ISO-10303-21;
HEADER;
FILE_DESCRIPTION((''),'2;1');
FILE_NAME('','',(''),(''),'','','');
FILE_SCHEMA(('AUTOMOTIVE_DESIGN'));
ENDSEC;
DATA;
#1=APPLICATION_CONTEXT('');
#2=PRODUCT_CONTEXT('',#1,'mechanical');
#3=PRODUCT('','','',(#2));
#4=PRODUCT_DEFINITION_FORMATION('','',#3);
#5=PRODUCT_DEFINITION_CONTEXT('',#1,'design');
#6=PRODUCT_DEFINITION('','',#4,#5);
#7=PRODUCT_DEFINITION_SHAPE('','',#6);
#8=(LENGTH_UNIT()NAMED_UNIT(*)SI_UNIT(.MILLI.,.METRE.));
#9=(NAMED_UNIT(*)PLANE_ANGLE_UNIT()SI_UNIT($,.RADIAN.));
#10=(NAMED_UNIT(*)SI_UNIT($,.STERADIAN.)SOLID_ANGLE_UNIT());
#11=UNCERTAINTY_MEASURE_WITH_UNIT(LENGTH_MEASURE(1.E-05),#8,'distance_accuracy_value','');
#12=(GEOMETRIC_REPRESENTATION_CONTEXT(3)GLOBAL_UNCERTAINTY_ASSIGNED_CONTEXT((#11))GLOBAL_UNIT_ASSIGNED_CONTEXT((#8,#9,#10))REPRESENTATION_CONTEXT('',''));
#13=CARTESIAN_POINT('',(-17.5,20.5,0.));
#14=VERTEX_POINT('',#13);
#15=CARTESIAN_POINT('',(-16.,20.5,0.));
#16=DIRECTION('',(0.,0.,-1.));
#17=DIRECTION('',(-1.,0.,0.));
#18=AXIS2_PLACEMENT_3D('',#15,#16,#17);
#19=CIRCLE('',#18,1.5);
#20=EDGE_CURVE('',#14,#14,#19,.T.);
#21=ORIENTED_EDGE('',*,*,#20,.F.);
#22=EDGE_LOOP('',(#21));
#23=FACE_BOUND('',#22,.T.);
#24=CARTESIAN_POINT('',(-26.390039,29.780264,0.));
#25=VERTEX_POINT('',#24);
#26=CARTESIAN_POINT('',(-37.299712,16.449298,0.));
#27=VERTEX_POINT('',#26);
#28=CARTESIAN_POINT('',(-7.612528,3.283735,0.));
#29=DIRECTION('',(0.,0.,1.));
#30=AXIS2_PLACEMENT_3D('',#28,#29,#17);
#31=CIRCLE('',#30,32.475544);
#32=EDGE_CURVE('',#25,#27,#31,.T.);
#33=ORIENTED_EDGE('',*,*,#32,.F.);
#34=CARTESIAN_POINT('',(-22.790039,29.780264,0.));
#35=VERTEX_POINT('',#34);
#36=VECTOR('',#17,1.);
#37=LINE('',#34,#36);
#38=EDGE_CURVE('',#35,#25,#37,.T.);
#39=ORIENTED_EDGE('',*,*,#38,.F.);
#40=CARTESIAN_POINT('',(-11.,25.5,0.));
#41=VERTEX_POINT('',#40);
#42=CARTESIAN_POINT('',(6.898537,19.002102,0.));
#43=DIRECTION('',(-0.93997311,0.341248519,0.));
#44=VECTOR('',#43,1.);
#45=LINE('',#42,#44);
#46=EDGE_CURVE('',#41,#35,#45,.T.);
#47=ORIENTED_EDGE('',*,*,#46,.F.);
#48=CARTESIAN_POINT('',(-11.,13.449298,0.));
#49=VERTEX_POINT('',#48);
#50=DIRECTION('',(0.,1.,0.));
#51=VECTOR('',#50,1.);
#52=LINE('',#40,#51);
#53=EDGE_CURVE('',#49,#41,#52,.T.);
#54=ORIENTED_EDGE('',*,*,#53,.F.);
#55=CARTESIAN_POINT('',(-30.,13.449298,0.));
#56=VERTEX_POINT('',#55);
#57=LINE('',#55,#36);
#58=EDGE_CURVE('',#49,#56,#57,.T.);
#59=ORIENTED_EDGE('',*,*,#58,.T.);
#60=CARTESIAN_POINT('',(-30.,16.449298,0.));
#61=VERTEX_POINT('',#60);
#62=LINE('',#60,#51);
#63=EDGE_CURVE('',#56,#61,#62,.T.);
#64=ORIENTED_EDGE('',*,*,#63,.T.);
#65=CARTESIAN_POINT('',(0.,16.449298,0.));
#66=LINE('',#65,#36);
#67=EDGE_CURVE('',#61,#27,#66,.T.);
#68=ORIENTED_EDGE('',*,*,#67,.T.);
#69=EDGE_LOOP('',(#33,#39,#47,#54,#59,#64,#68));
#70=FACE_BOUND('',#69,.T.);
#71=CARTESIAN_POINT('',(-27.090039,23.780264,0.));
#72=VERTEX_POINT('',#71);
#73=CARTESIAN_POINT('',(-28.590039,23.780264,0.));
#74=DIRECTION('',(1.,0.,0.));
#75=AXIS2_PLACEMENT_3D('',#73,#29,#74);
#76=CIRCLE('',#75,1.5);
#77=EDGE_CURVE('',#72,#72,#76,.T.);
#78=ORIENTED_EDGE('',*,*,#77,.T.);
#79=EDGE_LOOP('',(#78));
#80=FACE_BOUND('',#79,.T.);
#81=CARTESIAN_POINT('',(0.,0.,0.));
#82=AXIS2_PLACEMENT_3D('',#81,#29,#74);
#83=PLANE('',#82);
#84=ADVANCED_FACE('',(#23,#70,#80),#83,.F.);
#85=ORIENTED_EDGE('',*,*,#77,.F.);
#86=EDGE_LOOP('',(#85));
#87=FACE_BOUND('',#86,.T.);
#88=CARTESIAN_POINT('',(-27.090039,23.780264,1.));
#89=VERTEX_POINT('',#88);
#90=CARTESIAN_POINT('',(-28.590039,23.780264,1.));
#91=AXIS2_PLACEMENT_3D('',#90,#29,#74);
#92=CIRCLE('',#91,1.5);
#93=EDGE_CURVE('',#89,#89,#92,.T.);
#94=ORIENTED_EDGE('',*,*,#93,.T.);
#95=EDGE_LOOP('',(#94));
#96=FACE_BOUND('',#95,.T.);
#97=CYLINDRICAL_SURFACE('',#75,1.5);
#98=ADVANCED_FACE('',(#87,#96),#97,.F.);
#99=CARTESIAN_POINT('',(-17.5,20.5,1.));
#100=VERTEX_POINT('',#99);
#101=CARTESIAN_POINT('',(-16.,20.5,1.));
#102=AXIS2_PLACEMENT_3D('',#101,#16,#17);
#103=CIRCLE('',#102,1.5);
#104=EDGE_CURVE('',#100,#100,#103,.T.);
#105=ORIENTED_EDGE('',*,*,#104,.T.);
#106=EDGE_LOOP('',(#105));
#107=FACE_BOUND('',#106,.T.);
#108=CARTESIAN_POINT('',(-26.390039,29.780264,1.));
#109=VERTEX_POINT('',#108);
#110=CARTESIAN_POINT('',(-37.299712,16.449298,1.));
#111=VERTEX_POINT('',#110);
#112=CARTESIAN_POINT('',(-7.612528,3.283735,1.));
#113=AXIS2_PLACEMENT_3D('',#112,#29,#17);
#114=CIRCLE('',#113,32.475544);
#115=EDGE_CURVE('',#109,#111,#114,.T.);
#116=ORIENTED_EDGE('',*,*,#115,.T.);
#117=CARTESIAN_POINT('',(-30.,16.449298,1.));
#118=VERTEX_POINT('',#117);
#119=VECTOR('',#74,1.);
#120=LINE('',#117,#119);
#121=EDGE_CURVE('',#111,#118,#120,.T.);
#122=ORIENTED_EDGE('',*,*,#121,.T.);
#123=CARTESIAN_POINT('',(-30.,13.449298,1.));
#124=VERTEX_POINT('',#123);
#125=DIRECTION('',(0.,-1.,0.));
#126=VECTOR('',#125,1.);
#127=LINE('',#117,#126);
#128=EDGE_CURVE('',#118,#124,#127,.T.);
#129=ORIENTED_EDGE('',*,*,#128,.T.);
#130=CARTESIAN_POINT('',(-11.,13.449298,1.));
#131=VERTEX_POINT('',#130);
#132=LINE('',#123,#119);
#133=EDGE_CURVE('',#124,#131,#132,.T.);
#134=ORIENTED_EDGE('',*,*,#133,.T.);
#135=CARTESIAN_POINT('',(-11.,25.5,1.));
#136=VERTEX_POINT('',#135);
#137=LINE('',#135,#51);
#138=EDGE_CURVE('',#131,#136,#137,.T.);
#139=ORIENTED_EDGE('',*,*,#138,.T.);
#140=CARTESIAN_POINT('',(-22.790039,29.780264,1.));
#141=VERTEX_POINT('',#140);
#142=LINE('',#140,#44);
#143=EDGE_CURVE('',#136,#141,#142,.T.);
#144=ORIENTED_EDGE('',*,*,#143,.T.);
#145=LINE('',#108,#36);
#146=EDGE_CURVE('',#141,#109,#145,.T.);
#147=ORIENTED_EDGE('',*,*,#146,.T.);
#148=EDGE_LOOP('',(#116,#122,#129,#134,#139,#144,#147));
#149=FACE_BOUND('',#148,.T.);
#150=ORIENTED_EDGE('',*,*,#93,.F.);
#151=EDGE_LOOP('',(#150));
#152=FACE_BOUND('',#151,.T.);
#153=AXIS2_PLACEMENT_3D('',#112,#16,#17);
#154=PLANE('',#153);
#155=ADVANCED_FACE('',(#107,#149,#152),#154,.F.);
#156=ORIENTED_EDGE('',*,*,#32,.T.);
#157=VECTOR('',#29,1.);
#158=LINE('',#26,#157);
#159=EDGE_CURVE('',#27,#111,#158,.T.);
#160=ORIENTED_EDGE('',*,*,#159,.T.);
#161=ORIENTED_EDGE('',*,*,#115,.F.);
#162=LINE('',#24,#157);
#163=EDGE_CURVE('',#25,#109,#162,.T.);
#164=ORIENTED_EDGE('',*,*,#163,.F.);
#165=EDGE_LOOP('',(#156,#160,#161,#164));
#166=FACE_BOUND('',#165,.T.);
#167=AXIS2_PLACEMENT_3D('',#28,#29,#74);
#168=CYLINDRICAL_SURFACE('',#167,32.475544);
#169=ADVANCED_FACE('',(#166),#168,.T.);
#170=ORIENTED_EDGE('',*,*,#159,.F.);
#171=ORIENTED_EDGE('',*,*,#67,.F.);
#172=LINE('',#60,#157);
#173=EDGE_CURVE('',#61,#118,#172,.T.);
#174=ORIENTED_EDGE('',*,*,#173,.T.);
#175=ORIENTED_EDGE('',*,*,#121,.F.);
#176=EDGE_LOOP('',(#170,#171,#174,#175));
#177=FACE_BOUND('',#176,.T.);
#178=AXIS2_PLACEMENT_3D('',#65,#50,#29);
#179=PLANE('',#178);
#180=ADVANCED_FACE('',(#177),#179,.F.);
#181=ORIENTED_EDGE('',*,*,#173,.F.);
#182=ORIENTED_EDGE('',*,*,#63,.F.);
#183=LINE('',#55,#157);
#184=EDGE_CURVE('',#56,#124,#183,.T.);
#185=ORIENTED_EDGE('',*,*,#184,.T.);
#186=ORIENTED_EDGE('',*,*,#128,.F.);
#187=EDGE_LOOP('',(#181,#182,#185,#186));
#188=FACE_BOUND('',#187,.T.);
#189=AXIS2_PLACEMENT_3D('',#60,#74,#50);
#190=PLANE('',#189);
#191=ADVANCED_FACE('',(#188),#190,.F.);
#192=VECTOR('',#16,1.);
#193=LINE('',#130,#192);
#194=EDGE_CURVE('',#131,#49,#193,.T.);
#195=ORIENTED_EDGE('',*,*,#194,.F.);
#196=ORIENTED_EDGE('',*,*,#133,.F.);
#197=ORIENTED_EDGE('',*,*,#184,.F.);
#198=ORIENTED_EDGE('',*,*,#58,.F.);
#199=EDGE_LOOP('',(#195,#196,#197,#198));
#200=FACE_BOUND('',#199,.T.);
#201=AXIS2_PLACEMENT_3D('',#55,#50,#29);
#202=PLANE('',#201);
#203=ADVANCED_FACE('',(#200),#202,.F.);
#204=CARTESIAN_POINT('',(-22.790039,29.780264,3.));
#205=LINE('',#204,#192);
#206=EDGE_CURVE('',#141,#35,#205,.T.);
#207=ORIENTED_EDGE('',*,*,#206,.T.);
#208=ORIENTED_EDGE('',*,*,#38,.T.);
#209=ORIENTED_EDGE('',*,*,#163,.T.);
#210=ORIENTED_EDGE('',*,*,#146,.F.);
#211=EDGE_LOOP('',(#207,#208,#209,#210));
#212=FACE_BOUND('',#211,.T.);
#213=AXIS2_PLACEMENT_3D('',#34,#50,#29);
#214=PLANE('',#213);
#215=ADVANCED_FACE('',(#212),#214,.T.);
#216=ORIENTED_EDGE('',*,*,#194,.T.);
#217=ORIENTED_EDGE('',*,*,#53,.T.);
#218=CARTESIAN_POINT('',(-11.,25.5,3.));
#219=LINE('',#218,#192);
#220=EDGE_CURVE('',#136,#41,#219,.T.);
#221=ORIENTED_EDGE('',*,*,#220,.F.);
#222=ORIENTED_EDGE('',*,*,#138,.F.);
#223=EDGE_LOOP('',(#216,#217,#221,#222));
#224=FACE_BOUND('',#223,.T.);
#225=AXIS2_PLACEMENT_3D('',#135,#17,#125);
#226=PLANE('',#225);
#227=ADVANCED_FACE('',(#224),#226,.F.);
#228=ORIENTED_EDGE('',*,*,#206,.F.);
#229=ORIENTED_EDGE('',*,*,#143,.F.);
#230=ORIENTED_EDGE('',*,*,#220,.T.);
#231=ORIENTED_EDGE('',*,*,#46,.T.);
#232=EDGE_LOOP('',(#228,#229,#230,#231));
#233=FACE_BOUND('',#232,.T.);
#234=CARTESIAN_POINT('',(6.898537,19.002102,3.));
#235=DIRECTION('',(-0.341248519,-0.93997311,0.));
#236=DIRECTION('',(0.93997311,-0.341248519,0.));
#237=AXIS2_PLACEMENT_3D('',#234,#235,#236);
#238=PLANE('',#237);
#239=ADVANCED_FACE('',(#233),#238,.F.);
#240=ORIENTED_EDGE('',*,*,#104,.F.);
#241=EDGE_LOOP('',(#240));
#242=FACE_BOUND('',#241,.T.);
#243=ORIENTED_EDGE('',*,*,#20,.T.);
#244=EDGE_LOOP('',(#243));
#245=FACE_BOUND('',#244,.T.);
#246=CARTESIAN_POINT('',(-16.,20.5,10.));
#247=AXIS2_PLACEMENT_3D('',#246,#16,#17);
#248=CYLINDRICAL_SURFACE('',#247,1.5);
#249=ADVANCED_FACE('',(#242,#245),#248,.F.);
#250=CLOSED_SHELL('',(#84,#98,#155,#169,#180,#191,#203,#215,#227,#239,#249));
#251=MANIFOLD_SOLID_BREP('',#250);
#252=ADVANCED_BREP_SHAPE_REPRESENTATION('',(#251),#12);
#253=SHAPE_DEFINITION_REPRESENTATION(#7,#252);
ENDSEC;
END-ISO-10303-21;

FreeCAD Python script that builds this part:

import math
import FreeCAD as App
import Part
import Sketcher
from FreeCAD import Vector
Q = App.Units.Quantity

doc = App.newDocument("Part")
body = doc.addObject("PartDesign::Body", "Body")

# Sketch on XY plane
sketch1 = body.newObject("Sketcher::SketchObject", "Sketch")
sketch1.AttachmentSupport = (doc.getObject("XY_Plane"), [""])
sketch1.MapMode = "FlatFace"
sketch1.addGeometry([
    Part.LineSegment(Vector(-11, 26, 0), Vector(-23, 30, 0)),
    Part.ArcOfCircle(Part.Circle(Vector(0, 0, 0), Vector(0, 0, 1), 38), math.radians(127), math.radians(413)),
    Part.LineSegment(Vector(23, 30, 0), Vector(11, 26, 0)),
    Part.LineSegment(Vector(11, 26, 0), Vector(-11, 26, 0)),
], False)
sketch1.addConstraint([
    Sketcher.Constraint("Coincident", 0, 2, 1, 1),
    Sketcher.Constraint("Coincident", 1, 2, 2, 1),
    Sketcher.Constraint("Coincident", 2, 2, 3, 1),
    Sketcher.Constraint("Coincident", 3, 2, 0, 1),
    Sketcher.Constraint("Horizontal", 3),
    Sketcher.Constraint("Coincident", 1, 3, -1, 1),
    Sketcher.Constraint("Horizontal", 0, 2, 1, 2),
    Sketcher.Constraint("Equal", 0, 2),
    Sketcher.Constraint("Radius", 1, Q("37.5 mm")),
    Sketcher.Constraint("DistanceX", 3, 2, 3, 1, Q("22 mm")),
    Sketcher.Constraint("DistanceY", -1, 1, 2, 2, Q("25.5 mm")),
    Sketcher.Constraint("DistanceX", 0, 2, -1, 1, Q("22.790039 mm")),
])
pad1 = body.newObject("PartDesign::Pad", "Pad")
pad1.Profile = sketch1
pad1.Length = 3

# Sketch on XY plane
sketch2 = body.newObject("Sketcher::SketchObject", "Sketch001")
sketch2.AttachmentSupport = (doc.getObject("XY_Plane"), [""])
sketch2.MapMode = "FlatFace"
sketch2.AttachmentOffset = App.Placement(Vector(0, 0, 3), App.Rotation())
sketch2.addGeometry([
    Part.Circle(Vector(-25.4, 10.5, 0), Vector(0, 0, 1), 1.5),
    Part.Circle(Vector(-25.4, -10.5, 0), Vector(0, 0, 1), 1.5),
    Part.Circle(Vector(25.4, -10.5, 0), Vector(0, 0, 1), 1.5),
    Part.Circle(Vector(25.4, 10.5, 0), Vector(0, 0, 1), 1.5),
], False)
sketch2.addConstraint([
    Sketcher.Constraint("Equal", 0, 1),
    Sketcher.Constraint("Equal", 1, 2),
    Sketcher.Constraint("Equal", 2, 3),
    Sketcher.Constraint("Symmetric", 1, 3, 2, 3, -2),
    Sketcher.Constraint("Symmetric", 0, 3, 3, 3, -2),
    Sketcher.Constraint("Diameter", 0, Q("3 mm")),
    Sketcher.Constraint("DistanceX", 0, 3, -1, 1, Q("25.4 mm")),
    Sketcher.Constraint("DistanceY", 1, 3, 0, 3, Q("20.99 mm")),
    Sketcher.Constraint("DistanceX", 1, 3, -1, 1, Q("25.399982 mm")),
    Sketcher.Constraint("DistanceY", -1, 1, 0, 3, Q("10.496905 mm")),
])
pocket1 = body.newObject("PartDesign::Pocket", "Pocket")
pocket1.Profile = sketch2
pocket1.Length = 3

# Sketch on XY plane
sketch3 = body.newObject("Sketcher::SketchObject", "Sketch002")
sketch3.AttachmentSupport = (doc.getObject("XY_Plane"), [""])
sketch3.MapMode = "FlatFace"
sketch3.AttachmentOffset = App.Placement(Vector(0, 0, -7), App.Rotation())
sketch3.addGeometry([
    Part.LineSegment(Vector(-31, -21, 0), Vector(-31, 21, 0)),
    Part.ArcOfCircle(Part.Circle(Vector(0, 0, 0), Vector(0, 0, 1), 38), math.radians(145), math.radians(215)),
    Part.LineSegment(Vector(31, 21, 0), Vector(31, -21, 0)),
    Part.ArcOfCircle(Part.Circle(Vector(0, 0, 0), Vector(0, 0, 1), 38), math.radians(-35), math.radians(35)),
], False)
sketch3.addConstraint([
    Sketcher.Constraint("Coincident", 0, 1, 1, 2),
    Sketcher.Constraint("Coincident", 1, 1, 0, 2),
    Sketcher.Constraint("Coincident", 2, 1, 3, 2),
    Sketcher.Constraint("Coincident", 3, 1, 2, 2),
    Sketcher.Constraint("Vertical", 0),
    Sketcher.Constraint("Vertical", 2),
    Sketcher.Constraint("Coincident", 1, 3, -1, 1),
    Sketcher.Constraint("Coincident", 3, 3, -1, 1),
    Sketcher.Constraint("Equal", 1, 3),
    Sketcher.Constraint("Horizontal", 1, 1, 2, 1),
    Sketcher.Constraint("Radius", 1, Q("37.5 mm")),
    Sketcher.Constraint("DistanceX", 0, 1, -1, 1, Q("30.76 mm")),
])
pocket2 = body.newObject("PartDesign::Pocket", "Pocket001")
pocket2.Profile = sketch3
pocket2.Length = 10
pocket2.Reversed = True

# Sketch on XY plane
sketch4 = body.newObject("Sketcher::SketchObject", "Sketch003")
sketch4.AttachmentSupport = (doc.getObject("XY_Plane"), [""])
sketch4.MapMode = "FlatFace"
sketch4.addGeometry([
    Part.LineSegment(Vector(-30.8, -21.4, 0), Vector(-30.8, -16.4, 0)),  # 0
    Part.LineSegment(Vector(-30.8, -16.4, 0), Vector(-33.7, -16.4, 0)),  # 1
    Part.ArcOfCircle(Part.Circle(Vector(0, 0, 0), Vector(0, 0, 1), 37.5), math.radians(-153.98), math.radians(-145.11)),  # 2
    Part.LineSegment(Vector(-33.7, 16.4, 0), Vector(-30.8, 16.4, 0)),  # 3
    Part.LineSegment(Vector(-30.8, 16.4, 0), Vector(-30.8, 21.4, 0)),  # 4
    Part.ArcOfCircle(Part.Circle(Vector(0, 0, 0), Vector(0, 0, 1), 37.5), math.radians(145.11), math.radians(153.98)),  # 5
    Part.LineSegment(Vector(30.8, 21.4, 0), Vector(30.8, 16.4, 0)),  # 6
    Part.LineSegment(Vector(30.8, 16.4, 0), Vector(33.7, 16.4, 0)),  # 7
    Part.ArcOfCircle(Part.Circle(Vector(0, 0, 0), Vector(0, 0, 1), 37.5), math.radians(26.02), math.radians(34.89)),  # 8
    Part.LineSegment(Vector(30.8, -16.4, 0), Vector(30.8, -21.4, 0)),  # 9
    Part.ArcOfCircle(Part.Circle(Vector(0, 0, 0), Vector(0, 0, 1), 37.5), math.radians(-34.89), math.radians(-26.02)),  # 10
    Part.LineSegment(Vector(33.7, -16.4, 0), Vector(30.8, -16.4, 0)),  # 11
], False)
sketch4.addConstraint([
    Sketcher.Constraint("Coincident", 0, 2, 1, 1),
    Sketcher.Constraint("Coincident", 1, 2, 2, 1),
    Sketcher.Constraint("Coincident", 2, 2, 0, 1),
    Sketcher.Constraint("Coincident", 3, 2, 4, 1),
    Sketcher.Constraint("Coincident", 4, 2, 5, 1),
    Sketcher.Constraint("Coincident", 5, 2, 3, 1),
    Sketcher.Constraint("Coincident", 6, 2, 7, 1),
    Sketcher.Constraint("Coincident", 7, 2, 8, 1),
    Sketcher.Constraint("Coincident", 8, 2, 6, 1),
    Sketcher.Constraint("Coincident", 9, 2, 10, 1),
    Sketcher.Constraint("Coincident", 10, 2, 11, 1),
    Sketcher.Constraint("Coincident", 11, 2, 9, 1),
    Sketcher.Constraint("Vertical", 0),
    Sketcher.Constraint("Horizontal", 1),
    Sketcher.Constraint("Horizontal", 3),
    Sketcher.Constraint("Vertical", 4),
    Sketcher.Constraint("Vertical", 6),
    Sketcher.Constraint("Horizontal", 7),
    Sketcher.Constraint("Vertical", 9),
    Sketcher.Constraint("Horizontal", 11),
    Sketcher.Constraint("Coincident", 2, 3, -1, 1),
    Sketcher.Constraint("Coincident", 5, 3, -1, 1),
    Sketcher.Constraint("Coincident", 8, 3, -1, 1),
    Sketcher.Constraint("Coincident", 10, 3, -1, 1),
    Sketcher.Constraint("Equal", 2, 5),
    Sketcher.Constraint("Equal", 5, 8),
    Sketcher.Constraint("Equal", 8, 10),
    Sketcher.Constraint("Symmetric", 0, 2, 6, 2, -1, 1),
    Sketcher.Constraint("Symmetric", 3, 2, 11, 2, -1, 1),
    Sketcher.Constraint("Symmetric", 3, 2, 6, 2, -2),
    Sketcher.Constraint("Radius", 2, Q("37.5 mm")),
    Sketcher.Constraint("DistanceY", 0, 1, 0, 2, Q("5 mm")),
    Sketcher.Constraint("DistanceX", 0, 2, -1, 1, Q("30.76 mm")),
])
pad2 = body.newObject("PartDesign::Pad", "Pad001")
pad2.Profile = sketch4
pad2.Length = 3

# Sketch on XY plane
sketch5 = body.newObject("Sketcher::SketchObject", "Sketch004")
sketch5.AttachmentSupport = (doc.getObject("XY_Plane"), [""])
sketch5.MapMode = "FlatFace"
sketch5.AttachmentOffset = App.Placement(Vector(0, 0, 3), App.Rotation())
sketch5.addGeometry([
    Part.LineSegment(Vector(-30.8, 16.4, 0), Vector(-30.8, -16.4, 0)),  # 0
    Part.LineSegment(Vector(-30.8, -16.4, 0), Vector(-30.2, -16.4, 0)),  # 1
    Part.LineSegment(Vector(-30.2, -16.4, 0), Vector(-30.2, 16.4, 0)),  # 2
    Part.LineSegment(Vector(-30.2, 16.4, 0), Vector(-30.8, 16.4, 0)),  # 3
    Part.LineSegment(Vector(30.2, 16.4, 0), Vector(30.2, -16.4, 0)),  # 4
    Part.LineSegment(Vector(30.2, -16.4, 0), Vector(30.8, -16.4, 0)),  # 5
    Part.LineSegment(Vector(30.8, -16.4, 0), Vector(30.8, 16.4, 0)),  # 6
    Part.LineSegment(Vector(30.8, 16.4, 0), Vector(30.2, 16.4, 0)),  # 7
], False)
sketch5.addConstraint([
    Sketcher.Constraint("Coincident", 0, 2, 1, 1),
    Sketcher.Constraint("Coincident", 1, 2, 2, 1),
    Sketcher.Constraint("Coincident", 2, 2, 3, 1),
    Sketcher.Constraint("Coincident", 3, 2, 0, 1),
    Sketcher.Constraint("Coincident", 4, 2, 5, 1),
    Sketcher.Constraint("Coincident", 5, 2, 6, 1),
    Sketcher.Constraint("Coincident", 6, 2, 7, 1),
    Sketcher.Constraint("Coincident", 7, 2, 4, 1),
    Sketcher.Constraint("Vertical", 0),
    Sketcher.Constraint("Horizontal", 1),
    Sketcher.Constraint("Vertical", 2),
    Sketcher.Constraint("Horizontal", 3),
    Sketcher.Constraint("Vertical", 4),
    Sketcher.Constraint("Horizontal", 5),
    Sketcher.Constraint("Vertical", 6),
    Sketcher.Constraint("Horizontal", 7),
    Sketcher.Constraint("Symmetric", 2, 2, 4, 2, -1, 1),
    Sketcher.Constraint("Symmetric", 0, 2, 6, 2, -1, 1),
    Sketcher.Constraint("Horizontal", 1, 2, 4, 2),
    Sketcher.Constraint("DistanceX", 1, 1, 1, 2, Q("0.56 mm")),
    Sketcher.Constraint("DistanceX", 1, 2, -1, 1, Q("30.2 mm")),
    Sketcher.Constraint("DistanceY", 0, 2, -1, 1, Q("16.449298 mm")),
])
pocket3 = body.newObject("PartDesign::Pocket", "Pocket002")
pocket3.Profile = sketch5
pocket3.Length = 3

# Sketch on XY plane
sketch6 = body.newObject("Sketcher::SketchObject", "Sketch005")
sketch6.AttachmentSupport = (doc.getObject("XY_Plane"), [""])
sketch6.MapMode = "FlatFace"
sketch6.AttachmentOffset = App.Placement(Vector(0, 0, 3), App.Rotation())
sketch6.addGeometry([
    Part.LineSegment(Vector(-30.2, 16.45, 0), Vector(-30.2, -16.45, 0)),  # 0
    Part.LineSegment(Vector(-30.2, -16.45, 0), Vector(-30, -16.45, 0)),  # 1
    Part.LineSegment(Vector(-30, -16.45, 0), Vector(-30, 16.45, 0)),  # 2
    Part.LineSegment(Vector(-30, 16.45, 0), Vector(-30.2, 16.45, 0)),  # 3
    Part.LineSegment(Vector(30, 16.45, 0), Vector(30, -16.45, 0)),  # 4
    Part.LineSegment(Vector(30, -16.45, 0), Vector(30.2, -16.45, 0)),  # 5
    Part.LineSegment(Vector(30.2, -16.45, 0), Vector(30.2, 16.45, 0)),  # 6
    Part.LineSegment(Vector(30.2, 16.45, 0), Vector(30, 16.45, 0)),  # 7
], False)
sketch6.addConstraint([
    Sketcher.Constraint("Coincident", 0, 2, 1, 1),
    Sketcher.Constraint("Coincident", 1, 2, 2, 1),
    Sketcher.Constraint("Coincident", 2, 2, 3, 1),
    Sketcher.Constraint("Coincident", 3, 2, 0, 1),
    Sketcher.Constraint("Coincident", 4, 2, 5, 1),
    Sketcher.Constraint("Coincident", 5, 2, 6, 1),
    Sketcher.Constraint("Coincident", 6, 2, 7, 1),
    Sketcher.Constraint("Coincident", 7, 2, 4, 1),
    Sketcher.Constraint("Vertical", 0),
    Sketcher.Constraint("Horizontal", 1),
    Sketcher.Constraint("Vertical", 2),
    Sketcher.Constraint("Horizontal", 3),
    Sketcher.Constraint("Vertical", 4),
    Sketcher.Constraint("Horizontal", 5),
    Sketcher.Constraint("Vertical", 6),
    Sketcher.Constraint("Horizontal", 7),
    Sketcher.Constraint("Symmetric", 2, 2, 4, 2, -1, 1),
    Sketcher.Constraint("Symmetric", 0, 2, 6, 2, -1, 1),
    Sketcher.Constraint("Horizontal", 1, 2, 4, 2),
    Sketcher.Constraint("DistanceX", 1, 1, 1, 2, Q("0.2 mm")),
    Sketcher.Constraint("DistanceX", 1, 2, -1, 1, Q("30 mm")),
    Sketcher.Constraint("DistanceY", 0, 2, -1, 1, Q("16.449298 mm")),
])
pocket4 = body.newObject("PartDesign::Pocket", "Pocket003")
pocket4.Profile = sketch6
pocket4.Length = 3

# Sketch on XY plane
sketch7 = body.newObject("Sketcher::SketchObject", "Sketch006")
sketch7.AttachmentSupport = (doc.getObject("XY_Plane"), [""])
sketch7.MapMode = "FlatFace"
sketch7.AttachmentOffset = App.Placement(Vector(0, 0, 3), App.Rotation())
sketch7.addGeometry([
    Part.Circle(Vector(-19.1, -21.6, 0), Vector(0, 0, 1), 2),
    Part.Circle(Vector(19.1, -21.6, 0), Vector(0, 0, 1), 2),
], False)
sketch7.addConstraint([
    Sketcher.Constraint("Equal", 0, 1),
    Sketcher.Constraint("Symmetric", 0, 3, 1, 3, -2),
    Sketcher.Constraint("Diameter", 0, Q("4 mm")),
    Sketcher.Constraint("DistanceX", 0, 3, 1, 3, Q("38.3 mm")),
    Sketcher.Constraint("DistanceY", 0, 3, -1, 1, Q("21.55 mm")),
])
pocket5 = body.newObject("PartDesign::Pocket", "Pocket004")
pocket5.Profile = sketch7
pocket5.Length = 3

# Sketch on XY plane
sketch8 = body.newObject("Sketcher::SketchObject", "Sketch007")
sketch8.AttachmentSupport = (doc.getObject("XY_Plane"), [""])
sketch8.MapMode = "FlatFace"
sketch8.addGeometry([
    Part.LineSegment(Vector(-37.3, 16.4, 0), Vector(-33.7, 16.4, 0)),  # 0
    Part.ArcOfCircle(Part.Circle(Vector(0, 0, 0), Vector(0, 0, 1), 37.5), math.radians(127), math.radians(154)),  # 1
    Part.LineSegment(Vector(-22.8, 29.8, 0), Vector(-26.4, 29.8, 0)),  # 2
    Part.ArcOfCircle(Part.Circle(Vector(-7.6, 3.3, 0), Vector(0, 0, 1), 32.5), math.radians(125), math.radians(156)),  # 3
    Part.LineSegment(Vector(33.7, 16.4, 0), Vector(37.3, 16.4, 0)),  # 4
    Part.ArcOfCircle(Part.Circle(Vector(7.6, 3.3, 0), Vector(0, 0, 1), 32.5), math.radians(24), math.radians(55)),  # 5
    Part.LineSegment(Vector(26.4, 29.8, 0), Vector(22.8, 29.8, 0)),  # 6
    Part.ArcOfCircle(Part.Circle(Vector(0, 0, 0), Vector(0, 0, 1), 37.5), math.radians(26), math.radians(53)),  # 7
], False)
sketch8.addConstraint([
    Sketcher.Constraint("Coincident", 0, 2, 1, 2),
    Sketcher.Constraint("Coincident", 1, 1, 2, 1),
    Sketcher.Constraint("Coincident", 2, 2, 3, 1),
    Sketcher.Constraint("Coincident", 3, 2, 0, 1),
    Sketcher.Constraint("Coincident", 4, 2, 5, 1),
    Sketcher.Constraint("Coincident", 5, 2, 6, 1),
    Sketcher.Constraint("Coincident", 6, 2, 7, 2),
    Sketcher.Constraint("Coincident", 7, 1, 4, 1),
    Sketcher.Constraint("Horizontal", 0),
    Sketcher.Constraint("Horizontal", 2),
    Sketcher.Constraint("Horizontal", 4),
    Sketcher.Constraint("Horizontal", 6),
    Sketcher.Constraint("Coincident", 1, 3, -1, 1),
    Sketcher.Constraint("Coincident", 7, 3, -1, 1),
    Sketcher.Constraint("Equal", 3, 5),
    Sketcher.Constraint("Equal", 1, 7),
    Sketcher.Constraint("Symmetric", 3, 3, 5, 3, -2),
    Sketcher.Constraint("Horizontal", 3, 2, 4, 2),
    Sketcher.Constraint("Horizontal", 2, 2, 5, 2),
    Sketcher.Constraint("Equal", 0, 2),
    Sketcher.Constraint("Radius", 1, Q("37.5 mm")),
    Sketcher.Constraint("DistanceX", 0, 1, 0, 2, Q("3.6 mm")),
    Sketcher.Constraint("Radius", 3, Q("32.475544 mm")),
    Sketcher.Constraint("DistanceY", -1, 1, 0, 2, Q("16.449298 mm")),
    Sketcher.Constraint("DistanceX", 1, 1, -1, 1, Q("22.790039 mm")),
])
pad3 = body.newObject("PartDesign::Pad", "Pad002")
pad3.Profile = sketch8
pad3.Length = 3

# Sketch on XY plane
sketch9 = body.newObject("Sketcher::SketchObject", "Sketch008")
sketch9.AttachmentSupport = (doc.getObject("XY_Plane"), [""])
sketch9.MapMode = "FlatFace"
sketch9.addGeometry([
    Part.LineSegment(Vector(5, -37, 0), Vector(-5, -37, 0)),
    Part.ArcOfCircle(Part.Circle(Vector(0, 0, 0), Vector(0, 0, 1), 37), math.radians(-97.25), math.radians(-82.75)),
], False)
sketch9.addConstraint([
    Sketcher.Constraint("Coincident", 0, 1, 1, 2),
    Sketcher.Constraint("Coincident", 1, 1, 0, 2),
    Sketcher.Constraint("Horizontal", 0),
    Sketcher.Constraint("Coincident", 1, 3, -1, 1),
    Sketcher.Constraint("Radius", 1, Q("37.5 mm")),
    Sketcher.Constraint("DistanceY", 0, 1, -1, 1, Q("37.2 mm")),
])
pocket6 = body.newObject("PartDesign::Pocket", "Pocket005")
pocket6.Profile = sketch9
pocket6.Length = 3
pocket6.Reversed = True

# Sketch on XY plane
sketch10 = body.newObject("Sketcher::SketchObject", "Sketch009")
sketch10.AttachmentSupport = (doc.getObject("XY_Plane"), [""])
sketch10.MapMode = "FlatFace"
sketch10.addGeometry([
    Part.ArcOfCircle(Part.Circle(Vector(0, 0, 0), Vector(0, 0, 1), 37.5), math.radians(-154), math.radians(-97)),  # 0
    Part.LineSegment(Vector(-33.7, -16.4, 0), Vector(-37.3, -16.4, 0)),  # 1
    Part.ArcOfCircle(Part.Circle(Vector(0, 6.2, 0), Vector(0, 0, 1), 43.6), math.radians(-149), math.radians(-96)),  # 2
    Part.ArcOfCircle(Part.Circle(Vector(0, 0, 0), Vector(0, 0, 1), 37.5), math.radians(-83), math.radians(-26)),  # 3
    Part.ArcOfCircle(Part.Circle(Vector(0, 6.2, 0), Vector(0, 0, 1), 43.6), math.radians(-84), math.radians(-31)),  # 4
    Part.LineSegment(Vector(37.3, -16.4, 0), Vector(33.7, -16.4, 0)),  # 5
    Part.LineSegment(Vector(4.7, -37.2, 0), Vector(-4.7, -37.2, 0)),  # 6
    Part.ArcOfCircle(Part.Circle(Vector(0, 6.2, 0), Vector(0, 0, 1), 43.6), math.radians(-96.23), math.radians(-83.77)),  # 7
], False)
sketch10.addConstraint([
    Sketcher.Constraint("Coincident", 0, 1, 1, 1),
    Sketcher.Constraint("Coincident", 1, 2, 2, 1),
    Sketcher.Constraint("Coincident", 2, 2, 0, 2),
    Sketcher.Constraint("Coincident", 3, 1, 4, 1),
    Sketcher.Constraint("Coincident", 4, 2, 5, 1),
    Sketcher.Constraint("Coincident", 5, 2, 3, 2),
    Sketcher.Constraint("Coincident", 6, 1, 7, 2),
    Sketcher.Constraint("Coincident", 7, 1, 6, 2),
    Sketcher.Constraint("Horizontal", 1),
    Sketcher.Constraint("Horizontal", 5),
    Sketcher.Constraint("Horizontal", 6),
    Sketcher.Constraint("Coincident", 0, 3, -1, 1),
    Sketcher.Constraint("Coincident", 3, 3, -1, 1),
    Sketcher.Constraint("Coincident", 4, 3, 2, 3),
    Sketcher.Constraint("Coincident", 7, 3, 2, 3),
    Sketcher.Constraint("Coincident", 6, 1, 3, 1),
    Sketcher.Constraint("Coincident", 7, 1, 2, 2),
    Sketcher.Constraint("Equal", 0, 3),
    Sketcher.Constraint("Horizontal", 1, 2, 4, 2),
    Sketcher.Constraint("Radius", 0, Q("37.5 mm")),
    Sketcher.Constraint("DistanceX", 1, 2, 1, 1, Q("3.6 mm")),
    Sketcher.Constraint("DistanceY", 2, 2, -1, 1, Q("37.2 mm")),
    Sketcher.Constraint("Radius", 2, Q("43.616438 mm")),
])
pad4 = body.newObject("PartDesign::Pad", "Pad003")
pad4.Profile = sketch10
pad4.Length = 3

# Sketch on XY plane
sketch11 = body.newObject("Sketcher::SketchObject", "Sketch010")
sketch11.AttachmentSupport = (doc.getObject("XY_Plane"), [""])
sketch11.MapMode = "FlatFace"
sketch11.AttachmentOffset = App.Placement(Vector(0, 0, 1), App.Rotation())
sketch11.addGeometry([
    Part.LineSegment(Vector(-30, 16.4, 0), Vector(-30, 13.4, 0)),  # 0
    Part.LineSegment(Vector(-30, 13.4, 0), Vector(30, 13.4, 0)),  # 1
    Part.LineSegment(Vector(30, 13.4, 0), Vector(30, 16.4, 0)),  # 2
    Part.LineSegment(Vector(30, 16.4, 0), Vector(37.3, 16.4, 0)),  # 3
    Part.ArcOfCircle(Part.Circle(Vector(7.6, 3.3, 0), Vector(0, 0, 1), 32.5), math.radians(24), math.radians(55)),  # 4
    Part.LineSegment(Vector(26.4, 29.8, 0), Vector(22.8, 29.8, 0)),  # 5
    Part.LineSegment(Vector(22.8, 29.8, 0), Vector(11, 25.5, 0)),  # 6
    Part.LineSegment(Vector(11, 25.5, 0), Vector(-11, 25.5, 0)),  # 7
    Part.LineSegment(Vector(-11, 25.5, 0), Vector(-22.8, 29.8, 0)),  # 8
    Part.LineSegment(Vector(-22.8, 29.8, 0), Vector(-26.4, 29.8, 0)),  # 9
    Part.ArcOfCircle(Part.Circle(Vector(-7.6, 3.3, 0), Vector(0, 0, 1), 32.5), math.radians(125), math.radians(156)),  # 10
    Part.LineSegment(Vector(-37.3, 16.4, 0), Vector(-30, 16.4, 0)),  # 11
], False)
sketch11.addConstraint([
    Sketcher.Constraint("Coincident", 0, 2, 1, 1),
    Sketcher.Constraint("Coincident", 1, 2, 2, 1),
    Sketcher.Constraint("Coincident", 2, 2, 3, 1),
    Sketcher.Constraint("Coincident", 3, 2, 4, 1),
    Sketcher.Constraint("Coincident", 4, 2, 5, 1),
    Sketcher.Constraint("Coincident", 5, 2, 6, 1),
    Sketcher.Constraint("Coincident", 6, 2, 7, 1),
    Sketcher.Constraint("Coincident", 7, 2, 8, 1),
    Sketcher.Constraint("Coincident", 8, 2, 9, 1),
    Sketcher.Constraint("Coincident", 9, 2, 10, 1),
    Sketcher.Constraint("Coincident", 10, 2, 11, 1),
    Sketcher.Constraint("Coincident", 11, 2, 0, 1),
    Sketcher.Constraint("Vertical", 0),
    Sketcher.Constraint("Horizontal", 1),
    Sketcher.Constraint("Vertical", 2),
    Sketcher.Constraint("Horizontal", 3),
    Sketcher.Constraint("Horizontal", 5),
    Sketcher.Constraint("Horizontal", 7),
    Sketcher.Constraint("Horizontal", 9),
    Sketcher.Constraint("Horizontal", 11),
    Sketcher.Constraint("Equal", 4, 10),
    Sketcher.Constraint("Symmetric", 4, 3, 10, 3, -2),
    Sketcher.Constraint("Symmetric", 5, 2, 8, 2, -2),
    Sketcher.Constraint("Symmetric", 2, 2, 11, 2, -2),
    Sketcher.Constraint("Equal", 6, 8),
    Sketcher.Constraint("DistanceX", 1, 1, 1, 2, Q("60 mm")),
    Sketcher.Constraint("DistanceX", 7, 2, 7, 1, Q("22 mm")),
    Sketcher.Constraint("DistanceY", 0, 2, 0, 1, Q("3 mm")),
    Sketcher.Constraint("DistanceX", 5, 2, 5, 1, Q("3.6 mm")),
    Sketcher.Constraint("DistanceY", -1, 1, 6, 2, Q("25.5 mm")),
    Sketcher.Constraint("Radius", 4, Q("32.475544 mm")),
    Sketcher.Constraint("DistanceX", 3, 1, 3, 2, Q("7.299712 mm")),
    Sketcher.Constraint("DistanceY", -1, 1, 0, 2, Q("13.449298 mm")),
    Sketcher.Constraint("DistanceX", -1, 1, 4, 2, Q("26.390039 mm")),
    Sketcher.Constraint("DistanceX", 10, 3, 3, 2, Q("44.91224 mm")),
])
pocket7 = body.newObject("PartDesign::Pocket", "Pocket006")
pocket7.Profile = sketch11
pocket7.Length = 2
pocket7.Reversed = True

# Sketch on XY plane
sketch12 = body.newObject("Sketcher::SketchObject", "Sketch011")
sketch12.AttachmentSupport = (doc.getObject("XY_Plane"), [""])
sketch12.MapMode = "FlatFace"
sketch12.addGeometry([
    Part.LineSegment(Vector(-30, 13, 0), Vector(-30, -16, 0)),  # 0
    Part.LineSegment(Vector(-30, -16, 0), Vector(-37, -16, 0)),  # 1
    Part.ArcOfCircle(Part.Circle(Vector(0, 6, 0), Vector(0, 0, 1), 44), math.radians(-149), math.radians(-31)),  # 2
    Part.LineSegment(Vector(37, -16, 0), Vector(30, -16, 0)),  # 3
    Part.LineSegment(Vector(30, -16, 0), Vector(30, 13, 0)),  # 4
    Part.LineSegment(Vector(30, 13, 0), Vector(-30, 13, 0)),  # 5
], False)
sketch12.addConstraint([
    Sketcher.Constraint("Coincident", 0, 2, 1, 1),
    Sketcher.Constraint("Coincident", 1, 2, 2, 1),
    Sketcher.Constraint("Coincident", 2, 2, 3, 1),
    Sketcher.Constraint("Coincident", 3, 2, 4, 1),
    Sketcher.Constraint("Coincident", 4, 2, 5, 1),
    Sketcher.Constraint("Coincident", 5, 2, 0, 1),
    Sketcher.Constraint("Vertical", 0),
    Sketcher.Constraint("Horizontal", 1),
    Sketcher.Constraint("Horizontal", 3),
    Sketcher.Constraint("Vertical", 4),
    Sketcher.Constraint("Horizontal", 5),
    Sketcher.Constraint("Symmetric", 1, 2, 2, 2, -2),
    Sketcher.Constraint("Equal", 1, 3),
    Sketcher.Constraint("DistanceX", 5, 2, 5, 1, Q("60 mm")),
    Sketcher.Constraint("Radius", 2, Q("43.616438 mm")),
    Sketcher.Constraint("DistanceX", 1, 2, 1, 1, Q("7.299712 mm")),
    Sketcher.Constraint("DistanceY", 0, 2, -1, 1, Q("16.449298 mm")),
    Sketcher.Constraint("DistanceY", -1, 1, 4, 2, Q("13.449298 mm")),
])
pocket8 = body.newObject("PartDesign::Pocket", "Pocket007")
pocket8.Profile = sketch12
pocket8.Length = 3
pocket8.Reversed = True

# Sketch on XY plane
sketch13 = body.newObject("Sketcher::SketchObject", "Sketch012")
sketch13.AttachmentSupport = (doc.getObject("XY_Plane"), [""])
sketch13.MapMode = "FlatFace"
sketch13.AttachmentOffset = App.Placement(Vector(0, 0, 1), App.Rotation())
sketch13.addGeometry([
    Part.Circle(Vector(-28.6, 23.8, 0), Vector(0, 0, 1), 1.5),
    Part.Circle(Vector(28.6, 23.8, 0), Vector(0, 0, 1), 1.5),
], False)
sketch13.addConstraint([
    Sketcher.Constraint("Equal", 0, 1),
    Sketcher.Constraint("Symmetric", 0, 3, 1, 3, -2),
    Sketcher.Constraint("Diameter", 0, Q("3 mm")),
    Sketcher.Constraint("DistanceX", 0, 3, -1, 1, Q("28.590039 mm")),
    Sketcher.Constraint("DistanceY", -1, 1, 0, 3, Q("23.780264 mm")),
])
pocket9 = body.newObject("PartDesign::Pocket", "Pocket008")
pocket9.Profile = sketch13
pocket9.Length = 1

# Sketch on XY plane
sketch14 = body.newObject("Sketcher::SketchObject", "Sketch013")
sketch14.AttachmentSupport = (doc.getObject("XY_Plane"), [""])
sketch14.MapMode = "FlatFace"
sketch14.addGeometry([
    Part.LineSegment(Vector(-11, 13, 0), Vector(-11, 26, 0)),  # 0
    Part.LineSegment(Vector(-11, 26, 0), Vector(11, 26, 0)),  # 1
    Part.LineSegment(Vector(11, 26, 0), Vector(13, 32, 0)),  # 2
    Part.LineSegment(Vector(13, 32, 0), Vector(38, 32, 0)),  # 3
    Part.LineSegment(Vector(38, 32, 0), Vector(38, 13, 0)),  # 4
    Part.LineSegment(Vector(38, 13, 0), Vector(-11, 13, 0)),  # 5
], False)
sketch14.addConstraint([
    Sketcher.Constraint("Coincident", 0, 2, 1, 1),
    Sketcher.Constraint("Coincident", 1, 2, 2, 1),
    Sketcher.Constraint("Coincident", 2, 2, 3, 1),
    Sketcher.Constraint("Coincident", 3, 2, 4, 1),
    Sketcher.Constraint("Coincident", 4, 2, 5, 1),
    Sketcher.Constraint("Coincident", 5, 2, 0, 1),
    Sketcher.Constraint("Vertical", 0),
    Sketcher.Constraint("Horizontal", 1),
    Sketcher.Constraint("Horizontal", 3),
    Sketcher.Constraint("Vertical", 4),
    Sketcher.Constraint("Horizontal", 5),
    Sketcher.Constraint("DistanceX", 1, 1, 1, 2, Q("22 mm")),
    Sketcher.Constraint("DistanceX", 0, 2, -1, 1, Q("11 mm")),
    Sketcher.Constraint("DistanceY", -1, 1, 0, 2, Q("25.5 mm")),
    Sketcher.Constraint("DistanceY", 0, 1, 0, 2, Q("12.050702 mm")),
    Sketcher.Constraint("DistanceX", 5, 2, 5, 1, Q("48.921131 mm")),
    Sketcher.Constraint("Distance", 2, Q("7.08159 mm")),
    Sketcher.Constraint("DistanceX", 3, 1, 3, 2, Q("24.460565 mm")),
])
pocket10 = body.newObject("PartDesign::Pocket", "Pocket009")
pocket10.Profile = sketch14
pocket10.Length = 1
pocket10.Reversed = True

# Sketch on XY plane
sketch15 = body.newObject("Sketcher::SketchObject", "Sketch014")
sketch15.AttachmentSupport = (doc.getObject("XY_Plane"), [""])
sketch15.MapMode = "FlatFace"
sketch15.addGeometry(Part.Circle(Vector(-16, 20.5, 0), Vector(0, 0, 1), 1.5), False)
sketch15.addConstraint([
    Sketcher.Constraint("Diameter", 0, Q("3 mm")),
    Sketcher.Constraint("DistanceX", 0, 3, -1, 1, Q("16 mm")),
    Sketcher.Constraint("DistanceY", -1, 1, 0, 3, Q("20.5 mm")),
])
pocket11 = body.newObject("PartDesign::Pocket", "Pocket010")
pocket11.Profile = sketch15
pocket11.Length = 10
pocket11.Reversed = True

doc.recompute()
